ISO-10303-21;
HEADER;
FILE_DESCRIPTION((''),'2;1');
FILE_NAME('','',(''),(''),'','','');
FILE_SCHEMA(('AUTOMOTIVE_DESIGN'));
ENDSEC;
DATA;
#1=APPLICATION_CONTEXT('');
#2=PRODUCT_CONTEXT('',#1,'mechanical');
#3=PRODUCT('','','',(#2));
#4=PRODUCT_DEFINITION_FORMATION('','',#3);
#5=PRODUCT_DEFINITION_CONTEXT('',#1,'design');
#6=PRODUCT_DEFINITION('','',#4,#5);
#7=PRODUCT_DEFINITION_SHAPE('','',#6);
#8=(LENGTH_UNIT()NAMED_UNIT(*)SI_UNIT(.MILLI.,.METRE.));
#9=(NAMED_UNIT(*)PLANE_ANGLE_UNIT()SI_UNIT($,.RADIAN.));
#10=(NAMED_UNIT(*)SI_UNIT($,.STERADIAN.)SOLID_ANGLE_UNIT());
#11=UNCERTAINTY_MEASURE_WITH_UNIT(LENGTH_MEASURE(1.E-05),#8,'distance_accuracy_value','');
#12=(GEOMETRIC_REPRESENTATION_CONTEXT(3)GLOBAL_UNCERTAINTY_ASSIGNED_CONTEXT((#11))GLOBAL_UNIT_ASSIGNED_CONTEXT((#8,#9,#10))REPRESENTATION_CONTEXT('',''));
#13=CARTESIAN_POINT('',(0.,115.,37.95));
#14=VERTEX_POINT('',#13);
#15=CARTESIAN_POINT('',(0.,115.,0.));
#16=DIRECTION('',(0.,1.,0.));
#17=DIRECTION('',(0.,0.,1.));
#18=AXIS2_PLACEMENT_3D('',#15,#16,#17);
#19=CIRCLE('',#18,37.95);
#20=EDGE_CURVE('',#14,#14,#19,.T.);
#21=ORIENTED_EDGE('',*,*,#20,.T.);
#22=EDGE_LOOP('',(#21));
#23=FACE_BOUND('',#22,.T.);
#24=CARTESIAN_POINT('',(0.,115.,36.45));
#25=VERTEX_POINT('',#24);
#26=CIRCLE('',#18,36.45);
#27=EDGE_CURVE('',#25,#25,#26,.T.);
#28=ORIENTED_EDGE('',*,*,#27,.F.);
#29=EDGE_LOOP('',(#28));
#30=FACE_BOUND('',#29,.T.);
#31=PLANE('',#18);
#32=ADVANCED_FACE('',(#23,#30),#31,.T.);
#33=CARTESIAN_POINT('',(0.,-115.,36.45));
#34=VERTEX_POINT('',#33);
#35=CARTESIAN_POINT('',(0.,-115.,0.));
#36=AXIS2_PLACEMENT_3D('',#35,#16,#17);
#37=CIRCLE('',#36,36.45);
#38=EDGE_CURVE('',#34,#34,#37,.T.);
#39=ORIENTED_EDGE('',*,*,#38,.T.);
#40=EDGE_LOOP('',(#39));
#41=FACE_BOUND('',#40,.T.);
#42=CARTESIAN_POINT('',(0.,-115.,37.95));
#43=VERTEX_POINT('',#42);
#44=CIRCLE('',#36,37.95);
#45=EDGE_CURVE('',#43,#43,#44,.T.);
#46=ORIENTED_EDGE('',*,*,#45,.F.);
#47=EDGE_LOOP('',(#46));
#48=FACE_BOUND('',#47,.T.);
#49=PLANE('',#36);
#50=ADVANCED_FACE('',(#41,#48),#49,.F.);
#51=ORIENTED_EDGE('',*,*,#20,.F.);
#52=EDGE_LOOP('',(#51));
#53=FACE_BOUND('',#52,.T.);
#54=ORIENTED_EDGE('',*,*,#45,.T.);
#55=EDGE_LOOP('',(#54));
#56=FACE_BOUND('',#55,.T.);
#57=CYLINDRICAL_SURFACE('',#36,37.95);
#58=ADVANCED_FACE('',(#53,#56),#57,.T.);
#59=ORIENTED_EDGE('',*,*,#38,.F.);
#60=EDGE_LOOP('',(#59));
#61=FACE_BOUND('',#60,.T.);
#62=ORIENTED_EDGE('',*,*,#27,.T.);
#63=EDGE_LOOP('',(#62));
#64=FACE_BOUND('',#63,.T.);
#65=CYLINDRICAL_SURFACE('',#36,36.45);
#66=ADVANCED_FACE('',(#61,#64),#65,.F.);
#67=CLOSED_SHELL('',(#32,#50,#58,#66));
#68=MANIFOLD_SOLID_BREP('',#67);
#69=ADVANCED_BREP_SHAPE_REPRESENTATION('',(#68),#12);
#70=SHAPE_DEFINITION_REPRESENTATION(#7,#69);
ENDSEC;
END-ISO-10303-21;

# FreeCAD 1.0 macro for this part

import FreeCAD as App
import Part
import Sketcher

V = App.Vector
Q = App.Units.Quantity

doc = App.newDocument("Part")
body = doc.addObject("PartDesign::Body", "Body")

# Sketch on XZ plane
sketch1 = body.newObject("Sketcher::SketchObject", "Sketch")
sketch1.AttachmentSupport = (doc.getObject("XZ_Plane"), [""])
sketch1.MapMode = "FlatFace"
sketch1.addGeometry([
    Part.Circle(V(0, 0, 0), V(0, 0, 1), 38),
    Part.Circle(V(0, 0, 0), V(0, 0, 1), 36),
], False)
sketch1.addConstraint([
    Sketcher.Constraint("Coincident", 0, 3, -1, 1),
    Sketcher.Constraint("Coincident", 1, 3, -1, 1),
    Sketcher.Constraint("Diameter", 0, Q("75.9 mm")),
    Sketcher.Constraint("Diameter", 1, Q("72.9 mm")),
])
pad1 = body.newObject("PartDesign::Pad", "Pad")
pad1.Profile = sketch1
pad1.Type = "TwoLengths"
pad1.Length = 115
pad1.Length2 = 115
pad1.Reversed = True

doc.recompute()
